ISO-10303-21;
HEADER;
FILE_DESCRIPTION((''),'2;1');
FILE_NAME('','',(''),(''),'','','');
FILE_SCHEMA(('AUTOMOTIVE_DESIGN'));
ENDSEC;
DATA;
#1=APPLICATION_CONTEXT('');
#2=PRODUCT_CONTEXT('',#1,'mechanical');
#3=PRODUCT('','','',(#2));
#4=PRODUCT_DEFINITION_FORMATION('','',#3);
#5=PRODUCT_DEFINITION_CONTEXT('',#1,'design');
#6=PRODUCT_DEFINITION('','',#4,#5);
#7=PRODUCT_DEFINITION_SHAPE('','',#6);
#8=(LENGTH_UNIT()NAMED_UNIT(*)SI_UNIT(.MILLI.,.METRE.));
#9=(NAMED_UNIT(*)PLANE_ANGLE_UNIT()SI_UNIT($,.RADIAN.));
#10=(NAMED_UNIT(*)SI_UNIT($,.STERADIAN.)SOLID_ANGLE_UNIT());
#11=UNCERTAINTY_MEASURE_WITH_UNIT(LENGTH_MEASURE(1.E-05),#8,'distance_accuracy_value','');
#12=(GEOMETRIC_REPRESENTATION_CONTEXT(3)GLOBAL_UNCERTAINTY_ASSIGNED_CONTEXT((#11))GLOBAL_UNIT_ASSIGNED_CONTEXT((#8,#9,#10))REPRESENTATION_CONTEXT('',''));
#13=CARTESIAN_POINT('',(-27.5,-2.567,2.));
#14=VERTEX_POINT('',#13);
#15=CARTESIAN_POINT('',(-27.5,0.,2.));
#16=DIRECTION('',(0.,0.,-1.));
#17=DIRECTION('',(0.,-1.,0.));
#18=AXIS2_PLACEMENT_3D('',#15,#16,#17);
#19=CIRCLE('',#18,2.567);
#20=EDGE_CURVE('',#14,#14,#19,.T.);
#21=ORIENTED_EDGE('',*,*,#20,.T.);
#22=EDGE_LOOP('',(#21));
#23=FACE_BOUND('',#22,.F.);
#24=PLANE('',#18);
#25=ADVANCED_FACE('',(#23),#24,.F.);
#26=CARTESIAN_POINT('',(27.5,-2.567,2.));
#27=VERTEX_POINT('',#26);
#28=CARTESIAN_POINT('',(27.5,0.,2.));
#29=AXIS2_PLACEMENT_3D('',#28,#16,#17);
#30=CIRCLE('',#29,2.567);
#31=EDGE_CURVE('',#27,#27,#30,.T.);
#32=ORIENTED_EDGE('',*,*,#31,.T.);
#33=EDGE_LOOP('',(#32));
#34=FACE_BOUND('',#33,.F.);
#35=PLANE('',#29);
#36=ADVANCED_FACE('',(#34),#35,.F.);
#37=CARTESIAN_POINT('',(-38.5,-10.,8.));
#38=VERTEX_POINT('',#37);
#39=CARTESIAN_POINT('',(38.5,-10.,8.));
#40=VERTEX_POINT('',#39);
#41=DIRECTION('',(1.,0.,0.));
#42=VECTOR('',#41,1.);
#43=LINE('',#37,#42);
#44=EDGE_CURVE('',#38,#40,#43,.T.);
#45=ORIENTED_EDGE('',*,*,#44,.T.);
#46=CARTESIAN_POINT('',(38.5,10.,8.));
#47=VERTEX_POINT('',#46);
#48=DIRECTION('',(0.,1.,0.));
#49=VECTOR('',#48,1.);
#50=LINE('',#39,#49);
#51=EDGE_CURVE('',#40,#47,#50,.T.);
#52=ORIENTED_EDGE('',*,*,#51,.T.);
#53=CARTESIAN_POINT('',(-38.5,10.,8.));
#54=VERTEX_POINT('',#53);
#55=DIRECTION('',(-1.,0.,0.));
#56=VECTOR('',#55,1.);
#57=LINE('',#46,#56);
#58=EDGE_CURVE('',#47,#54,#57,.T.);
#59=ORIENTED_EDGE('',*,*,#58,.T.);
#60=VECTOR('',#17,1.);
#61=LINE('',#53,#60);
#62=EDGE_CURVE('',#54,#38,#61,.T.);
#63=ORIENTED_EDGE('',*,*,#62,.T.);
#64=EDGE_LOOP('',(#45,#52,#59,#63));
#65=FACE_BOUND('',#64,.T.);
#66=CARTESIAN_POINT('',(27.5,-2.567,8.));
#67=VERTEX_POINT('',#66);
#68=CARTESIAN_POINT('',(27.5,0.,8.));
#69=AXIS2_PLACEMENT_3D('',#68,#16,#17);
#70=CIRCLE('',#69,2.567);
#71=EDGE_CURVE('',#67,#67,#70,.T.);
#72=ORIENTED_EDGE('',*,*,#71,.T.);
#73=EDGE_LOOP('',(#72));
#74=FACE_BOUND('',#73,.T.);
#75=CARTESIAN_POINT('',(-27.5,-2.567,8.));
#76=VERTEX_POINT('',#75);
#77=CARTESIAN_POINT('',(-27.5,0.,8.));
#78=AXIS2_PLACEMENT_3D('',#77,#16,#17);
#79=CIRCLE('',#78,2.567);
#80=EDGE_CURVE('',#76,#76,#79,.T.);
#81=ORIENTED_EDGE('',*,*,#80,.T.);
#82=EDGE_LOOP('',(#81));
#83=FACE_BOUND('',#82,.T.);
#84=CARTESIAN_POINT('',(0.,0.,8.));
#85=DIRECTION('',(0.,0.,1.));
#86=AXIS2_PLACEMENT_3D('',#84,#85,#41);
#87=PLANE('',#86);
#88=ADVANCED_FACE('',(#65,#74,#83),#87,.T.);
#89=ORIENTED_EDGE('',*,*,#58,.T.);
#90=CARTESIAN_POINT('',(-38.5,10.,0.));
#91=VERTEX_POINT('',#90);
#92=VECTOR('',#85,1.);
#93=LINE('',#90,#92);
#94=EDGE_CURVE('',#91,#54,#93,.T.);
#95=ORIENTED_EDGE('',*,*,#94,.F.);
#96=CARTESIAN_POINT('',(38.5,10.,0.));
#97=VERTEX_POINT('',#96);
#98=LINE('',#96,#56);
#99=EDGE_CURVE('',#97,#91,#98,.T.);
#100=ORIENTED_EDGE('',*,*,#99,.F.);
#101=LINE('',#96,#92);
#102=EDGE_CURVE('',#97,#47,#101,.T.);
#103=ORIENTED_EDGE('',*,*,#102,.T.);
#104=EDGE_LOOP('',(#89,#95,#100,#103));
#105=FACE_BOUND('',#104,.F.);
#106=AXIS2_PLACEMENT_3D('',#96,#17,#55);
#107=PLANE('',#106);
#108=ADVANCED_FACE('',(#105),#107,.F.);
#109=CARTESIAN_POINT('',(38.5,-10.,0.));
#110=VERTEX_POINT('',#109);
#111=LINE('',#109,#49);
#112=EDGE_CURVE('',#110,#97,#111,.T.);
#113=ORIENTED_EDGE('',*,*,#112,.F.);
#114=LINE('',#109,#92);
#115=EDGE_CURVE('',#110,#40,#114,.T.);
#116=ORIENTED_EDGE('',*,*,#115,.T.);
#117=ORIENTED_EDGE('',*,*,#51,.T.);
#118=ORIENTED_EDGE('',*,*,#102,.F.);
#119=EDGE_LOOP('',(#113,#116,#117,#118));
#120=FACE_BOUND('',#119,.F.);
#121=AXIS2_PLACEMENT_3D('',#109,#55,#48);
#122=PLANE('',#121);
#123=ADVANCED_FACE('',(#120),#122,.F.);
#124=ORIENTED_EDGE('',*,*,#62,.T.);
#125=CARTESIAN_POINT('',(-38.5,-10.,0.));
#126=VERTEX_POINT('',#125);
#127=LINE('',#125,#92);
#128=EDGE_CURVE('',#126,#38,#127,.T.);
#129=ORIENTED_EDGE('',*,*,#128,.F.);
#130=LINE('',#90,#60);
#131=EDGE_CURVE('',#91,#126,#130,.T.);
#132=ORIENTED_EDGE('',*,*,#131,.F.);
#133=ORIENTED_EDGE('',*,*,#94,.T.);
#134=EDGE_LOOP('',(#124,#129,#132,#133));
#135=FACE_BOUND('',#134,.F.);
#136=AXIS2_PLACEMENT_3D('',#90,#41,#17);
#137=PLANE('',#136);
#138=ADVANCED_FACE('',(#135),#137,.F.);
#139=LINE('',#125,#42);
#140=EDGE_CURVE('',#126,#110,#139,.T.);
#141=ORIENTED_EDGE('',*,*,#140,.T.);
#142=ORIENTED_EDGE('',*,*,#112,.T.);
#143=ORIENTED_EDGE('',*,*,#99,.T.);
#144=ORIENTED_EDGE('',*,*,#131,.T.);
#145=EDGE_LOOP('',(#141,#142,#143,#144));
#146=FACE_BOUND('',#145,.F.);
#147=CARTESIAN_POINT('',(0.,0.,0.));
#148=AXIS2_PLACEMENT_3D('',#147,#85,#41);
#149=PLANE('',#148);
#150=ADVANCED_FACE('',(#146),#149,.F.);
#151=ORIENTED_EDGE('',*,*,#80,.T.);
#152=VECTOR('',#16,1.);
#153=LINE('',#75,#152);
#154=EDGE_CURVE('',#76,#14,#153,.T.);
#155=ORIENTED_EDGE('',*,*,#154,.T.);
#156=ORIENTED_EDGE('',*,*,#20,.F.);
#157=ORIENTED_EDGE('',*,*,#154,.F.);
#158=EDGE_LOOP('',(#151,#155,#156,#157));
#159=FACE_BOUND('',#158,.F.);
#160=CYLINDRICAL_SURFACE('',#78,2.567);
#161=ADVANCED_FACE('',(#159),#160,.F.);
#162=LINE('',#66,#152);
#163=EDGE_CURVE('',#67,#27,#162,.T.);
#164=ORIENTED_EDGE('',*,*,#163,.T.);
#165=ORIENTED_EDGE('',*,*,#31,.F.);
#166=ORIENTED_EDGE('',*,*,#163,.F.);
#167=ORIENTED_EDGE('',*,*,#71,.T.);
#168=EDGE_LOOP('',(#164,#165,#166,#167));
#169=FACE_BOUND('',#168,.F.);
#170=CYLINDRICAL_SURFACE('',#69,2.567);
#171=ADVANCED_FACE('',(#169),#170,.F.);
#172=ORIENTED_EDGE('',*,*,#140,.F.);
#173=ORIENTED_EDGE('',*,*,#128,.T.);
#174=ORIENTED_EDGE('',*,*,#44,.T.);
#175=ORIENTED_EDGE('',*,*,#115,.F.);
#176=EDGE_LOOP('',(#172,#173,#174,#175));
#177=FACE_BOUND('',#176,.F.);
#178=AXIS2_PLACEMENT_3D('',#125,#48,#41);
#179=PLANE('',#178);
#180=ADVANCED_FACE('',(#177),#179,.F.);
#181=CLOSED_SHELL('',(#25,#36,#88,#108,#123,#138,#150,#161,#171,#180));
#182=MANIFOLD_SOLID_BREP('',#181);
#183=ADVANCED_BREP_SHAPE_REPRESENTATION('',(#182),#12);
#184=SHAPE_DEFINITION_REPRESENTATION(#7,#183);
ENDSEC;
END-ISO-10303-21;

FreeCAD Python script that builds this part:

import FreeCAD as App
import Part
import Sketcher


def add_polygon(sketch, points):
    """Adds a closed chain of lines whose ends are joined by coincident constraints."""
    first, n = sketch.GeometryCount, len(points)
    for a, b in zip(points, points[1:] + points[:1]):
        sketch.addGeometry(Part.LineSegment(App.Vector(*a, 0), App.Vector(*b, 0)), False)
    for i in range(n):
        sketch.addConstraint(Sketcher.Constraint("Coincident", first + i, 2, first + (i + 1) % n, 1))

doc = App.newDocument("Part")
body = doc.addObject("PartDesign::Body", "Body")

sketch1 = body.newObject("Sketcher::SketchObject", "Sketch")
sketch1.AttachmentSupport = (doc.getObject("XY_Plane"), [""])
sketch1.MapMode = "FlatFace"
add_polygon(sketch1, [(-38, 10), (-38, -10), (38, -10), (38, 10)])
sketch1.addConstraint(Sketcher.Constraint("Vertical", 0))
sketch1.addConstraint(Sketcher.Constraint("Horizontal", 1))
sketch1.addConstraint(Sketcher.Constraint("Vertical", 2))
sketch1.addConstraint(Sketcher.Constraint("Horizontal", 3))
sketch1.addConstraint(Sketcher.Constraint("Symmetric", 0, 2, 2, 2, -1, 1))
sketch1.addConstraint(Sketcher.Constraint("DistanceX", 1, 1, 1, 2, 77.0))
sketch1.addConstraint(Sketcher.Constraint("DistanceY", 0, 2, 0, 1, 20.0))
pad1 = body.newObject("PartDesign::Pad", "Pad")
pad1.Profile = sketch1
pad1.Length = 8

sketch2 = body.newObject("Sketcher::SketchObject", "Sketch001")
sketch2.AttachmentSupport = (doc.getObject("XY_Plane"), [""])
sketch2.MapMode = "FlatFace"
sketch2.AttachmentOffset = App.Placement(App.Vector(0, 0, 8), App.Rotation())
sketch2.addGeometry(Part.Circle(App.Vector(-27.5, 0, 0), App.Vector(0, 0, 1), 2.6), False)
sketch2.addGeometry(Part.Circle(App.Vector(27.5, 0, 0), App.Vector(0, 0, 1), 2.6), False)
sketch2.addConstraint(Sketcher.Constraint("Equal", 0, 1))
sketch2.addConstraint(Sketcher.Constraint("Symmetric", 0, 3, 1, 3, -1, 1))
sketch2.addConstraint(Sketcher.Constraint("PointOnObject", 0, 3, -1))
sketch2.addConstraint(Sketcher.Constraint("Diameter", 0, 5.134))
sketch2.addConstraint(Sketcher.Constraint("DistanceX", 0, 3, 1, 3, 55.0))
doc.recompute()
hole = body.newObject("PartDesign::Hole", "Hole")
hole.Profile = sketch2
hole.ThreadType = "None"
hole.Diameter = 5.134
hole.DepthType = "Dimension"
hole.Depth = 6
hole.DrillPoint = "Flat"

doc.recompute()
